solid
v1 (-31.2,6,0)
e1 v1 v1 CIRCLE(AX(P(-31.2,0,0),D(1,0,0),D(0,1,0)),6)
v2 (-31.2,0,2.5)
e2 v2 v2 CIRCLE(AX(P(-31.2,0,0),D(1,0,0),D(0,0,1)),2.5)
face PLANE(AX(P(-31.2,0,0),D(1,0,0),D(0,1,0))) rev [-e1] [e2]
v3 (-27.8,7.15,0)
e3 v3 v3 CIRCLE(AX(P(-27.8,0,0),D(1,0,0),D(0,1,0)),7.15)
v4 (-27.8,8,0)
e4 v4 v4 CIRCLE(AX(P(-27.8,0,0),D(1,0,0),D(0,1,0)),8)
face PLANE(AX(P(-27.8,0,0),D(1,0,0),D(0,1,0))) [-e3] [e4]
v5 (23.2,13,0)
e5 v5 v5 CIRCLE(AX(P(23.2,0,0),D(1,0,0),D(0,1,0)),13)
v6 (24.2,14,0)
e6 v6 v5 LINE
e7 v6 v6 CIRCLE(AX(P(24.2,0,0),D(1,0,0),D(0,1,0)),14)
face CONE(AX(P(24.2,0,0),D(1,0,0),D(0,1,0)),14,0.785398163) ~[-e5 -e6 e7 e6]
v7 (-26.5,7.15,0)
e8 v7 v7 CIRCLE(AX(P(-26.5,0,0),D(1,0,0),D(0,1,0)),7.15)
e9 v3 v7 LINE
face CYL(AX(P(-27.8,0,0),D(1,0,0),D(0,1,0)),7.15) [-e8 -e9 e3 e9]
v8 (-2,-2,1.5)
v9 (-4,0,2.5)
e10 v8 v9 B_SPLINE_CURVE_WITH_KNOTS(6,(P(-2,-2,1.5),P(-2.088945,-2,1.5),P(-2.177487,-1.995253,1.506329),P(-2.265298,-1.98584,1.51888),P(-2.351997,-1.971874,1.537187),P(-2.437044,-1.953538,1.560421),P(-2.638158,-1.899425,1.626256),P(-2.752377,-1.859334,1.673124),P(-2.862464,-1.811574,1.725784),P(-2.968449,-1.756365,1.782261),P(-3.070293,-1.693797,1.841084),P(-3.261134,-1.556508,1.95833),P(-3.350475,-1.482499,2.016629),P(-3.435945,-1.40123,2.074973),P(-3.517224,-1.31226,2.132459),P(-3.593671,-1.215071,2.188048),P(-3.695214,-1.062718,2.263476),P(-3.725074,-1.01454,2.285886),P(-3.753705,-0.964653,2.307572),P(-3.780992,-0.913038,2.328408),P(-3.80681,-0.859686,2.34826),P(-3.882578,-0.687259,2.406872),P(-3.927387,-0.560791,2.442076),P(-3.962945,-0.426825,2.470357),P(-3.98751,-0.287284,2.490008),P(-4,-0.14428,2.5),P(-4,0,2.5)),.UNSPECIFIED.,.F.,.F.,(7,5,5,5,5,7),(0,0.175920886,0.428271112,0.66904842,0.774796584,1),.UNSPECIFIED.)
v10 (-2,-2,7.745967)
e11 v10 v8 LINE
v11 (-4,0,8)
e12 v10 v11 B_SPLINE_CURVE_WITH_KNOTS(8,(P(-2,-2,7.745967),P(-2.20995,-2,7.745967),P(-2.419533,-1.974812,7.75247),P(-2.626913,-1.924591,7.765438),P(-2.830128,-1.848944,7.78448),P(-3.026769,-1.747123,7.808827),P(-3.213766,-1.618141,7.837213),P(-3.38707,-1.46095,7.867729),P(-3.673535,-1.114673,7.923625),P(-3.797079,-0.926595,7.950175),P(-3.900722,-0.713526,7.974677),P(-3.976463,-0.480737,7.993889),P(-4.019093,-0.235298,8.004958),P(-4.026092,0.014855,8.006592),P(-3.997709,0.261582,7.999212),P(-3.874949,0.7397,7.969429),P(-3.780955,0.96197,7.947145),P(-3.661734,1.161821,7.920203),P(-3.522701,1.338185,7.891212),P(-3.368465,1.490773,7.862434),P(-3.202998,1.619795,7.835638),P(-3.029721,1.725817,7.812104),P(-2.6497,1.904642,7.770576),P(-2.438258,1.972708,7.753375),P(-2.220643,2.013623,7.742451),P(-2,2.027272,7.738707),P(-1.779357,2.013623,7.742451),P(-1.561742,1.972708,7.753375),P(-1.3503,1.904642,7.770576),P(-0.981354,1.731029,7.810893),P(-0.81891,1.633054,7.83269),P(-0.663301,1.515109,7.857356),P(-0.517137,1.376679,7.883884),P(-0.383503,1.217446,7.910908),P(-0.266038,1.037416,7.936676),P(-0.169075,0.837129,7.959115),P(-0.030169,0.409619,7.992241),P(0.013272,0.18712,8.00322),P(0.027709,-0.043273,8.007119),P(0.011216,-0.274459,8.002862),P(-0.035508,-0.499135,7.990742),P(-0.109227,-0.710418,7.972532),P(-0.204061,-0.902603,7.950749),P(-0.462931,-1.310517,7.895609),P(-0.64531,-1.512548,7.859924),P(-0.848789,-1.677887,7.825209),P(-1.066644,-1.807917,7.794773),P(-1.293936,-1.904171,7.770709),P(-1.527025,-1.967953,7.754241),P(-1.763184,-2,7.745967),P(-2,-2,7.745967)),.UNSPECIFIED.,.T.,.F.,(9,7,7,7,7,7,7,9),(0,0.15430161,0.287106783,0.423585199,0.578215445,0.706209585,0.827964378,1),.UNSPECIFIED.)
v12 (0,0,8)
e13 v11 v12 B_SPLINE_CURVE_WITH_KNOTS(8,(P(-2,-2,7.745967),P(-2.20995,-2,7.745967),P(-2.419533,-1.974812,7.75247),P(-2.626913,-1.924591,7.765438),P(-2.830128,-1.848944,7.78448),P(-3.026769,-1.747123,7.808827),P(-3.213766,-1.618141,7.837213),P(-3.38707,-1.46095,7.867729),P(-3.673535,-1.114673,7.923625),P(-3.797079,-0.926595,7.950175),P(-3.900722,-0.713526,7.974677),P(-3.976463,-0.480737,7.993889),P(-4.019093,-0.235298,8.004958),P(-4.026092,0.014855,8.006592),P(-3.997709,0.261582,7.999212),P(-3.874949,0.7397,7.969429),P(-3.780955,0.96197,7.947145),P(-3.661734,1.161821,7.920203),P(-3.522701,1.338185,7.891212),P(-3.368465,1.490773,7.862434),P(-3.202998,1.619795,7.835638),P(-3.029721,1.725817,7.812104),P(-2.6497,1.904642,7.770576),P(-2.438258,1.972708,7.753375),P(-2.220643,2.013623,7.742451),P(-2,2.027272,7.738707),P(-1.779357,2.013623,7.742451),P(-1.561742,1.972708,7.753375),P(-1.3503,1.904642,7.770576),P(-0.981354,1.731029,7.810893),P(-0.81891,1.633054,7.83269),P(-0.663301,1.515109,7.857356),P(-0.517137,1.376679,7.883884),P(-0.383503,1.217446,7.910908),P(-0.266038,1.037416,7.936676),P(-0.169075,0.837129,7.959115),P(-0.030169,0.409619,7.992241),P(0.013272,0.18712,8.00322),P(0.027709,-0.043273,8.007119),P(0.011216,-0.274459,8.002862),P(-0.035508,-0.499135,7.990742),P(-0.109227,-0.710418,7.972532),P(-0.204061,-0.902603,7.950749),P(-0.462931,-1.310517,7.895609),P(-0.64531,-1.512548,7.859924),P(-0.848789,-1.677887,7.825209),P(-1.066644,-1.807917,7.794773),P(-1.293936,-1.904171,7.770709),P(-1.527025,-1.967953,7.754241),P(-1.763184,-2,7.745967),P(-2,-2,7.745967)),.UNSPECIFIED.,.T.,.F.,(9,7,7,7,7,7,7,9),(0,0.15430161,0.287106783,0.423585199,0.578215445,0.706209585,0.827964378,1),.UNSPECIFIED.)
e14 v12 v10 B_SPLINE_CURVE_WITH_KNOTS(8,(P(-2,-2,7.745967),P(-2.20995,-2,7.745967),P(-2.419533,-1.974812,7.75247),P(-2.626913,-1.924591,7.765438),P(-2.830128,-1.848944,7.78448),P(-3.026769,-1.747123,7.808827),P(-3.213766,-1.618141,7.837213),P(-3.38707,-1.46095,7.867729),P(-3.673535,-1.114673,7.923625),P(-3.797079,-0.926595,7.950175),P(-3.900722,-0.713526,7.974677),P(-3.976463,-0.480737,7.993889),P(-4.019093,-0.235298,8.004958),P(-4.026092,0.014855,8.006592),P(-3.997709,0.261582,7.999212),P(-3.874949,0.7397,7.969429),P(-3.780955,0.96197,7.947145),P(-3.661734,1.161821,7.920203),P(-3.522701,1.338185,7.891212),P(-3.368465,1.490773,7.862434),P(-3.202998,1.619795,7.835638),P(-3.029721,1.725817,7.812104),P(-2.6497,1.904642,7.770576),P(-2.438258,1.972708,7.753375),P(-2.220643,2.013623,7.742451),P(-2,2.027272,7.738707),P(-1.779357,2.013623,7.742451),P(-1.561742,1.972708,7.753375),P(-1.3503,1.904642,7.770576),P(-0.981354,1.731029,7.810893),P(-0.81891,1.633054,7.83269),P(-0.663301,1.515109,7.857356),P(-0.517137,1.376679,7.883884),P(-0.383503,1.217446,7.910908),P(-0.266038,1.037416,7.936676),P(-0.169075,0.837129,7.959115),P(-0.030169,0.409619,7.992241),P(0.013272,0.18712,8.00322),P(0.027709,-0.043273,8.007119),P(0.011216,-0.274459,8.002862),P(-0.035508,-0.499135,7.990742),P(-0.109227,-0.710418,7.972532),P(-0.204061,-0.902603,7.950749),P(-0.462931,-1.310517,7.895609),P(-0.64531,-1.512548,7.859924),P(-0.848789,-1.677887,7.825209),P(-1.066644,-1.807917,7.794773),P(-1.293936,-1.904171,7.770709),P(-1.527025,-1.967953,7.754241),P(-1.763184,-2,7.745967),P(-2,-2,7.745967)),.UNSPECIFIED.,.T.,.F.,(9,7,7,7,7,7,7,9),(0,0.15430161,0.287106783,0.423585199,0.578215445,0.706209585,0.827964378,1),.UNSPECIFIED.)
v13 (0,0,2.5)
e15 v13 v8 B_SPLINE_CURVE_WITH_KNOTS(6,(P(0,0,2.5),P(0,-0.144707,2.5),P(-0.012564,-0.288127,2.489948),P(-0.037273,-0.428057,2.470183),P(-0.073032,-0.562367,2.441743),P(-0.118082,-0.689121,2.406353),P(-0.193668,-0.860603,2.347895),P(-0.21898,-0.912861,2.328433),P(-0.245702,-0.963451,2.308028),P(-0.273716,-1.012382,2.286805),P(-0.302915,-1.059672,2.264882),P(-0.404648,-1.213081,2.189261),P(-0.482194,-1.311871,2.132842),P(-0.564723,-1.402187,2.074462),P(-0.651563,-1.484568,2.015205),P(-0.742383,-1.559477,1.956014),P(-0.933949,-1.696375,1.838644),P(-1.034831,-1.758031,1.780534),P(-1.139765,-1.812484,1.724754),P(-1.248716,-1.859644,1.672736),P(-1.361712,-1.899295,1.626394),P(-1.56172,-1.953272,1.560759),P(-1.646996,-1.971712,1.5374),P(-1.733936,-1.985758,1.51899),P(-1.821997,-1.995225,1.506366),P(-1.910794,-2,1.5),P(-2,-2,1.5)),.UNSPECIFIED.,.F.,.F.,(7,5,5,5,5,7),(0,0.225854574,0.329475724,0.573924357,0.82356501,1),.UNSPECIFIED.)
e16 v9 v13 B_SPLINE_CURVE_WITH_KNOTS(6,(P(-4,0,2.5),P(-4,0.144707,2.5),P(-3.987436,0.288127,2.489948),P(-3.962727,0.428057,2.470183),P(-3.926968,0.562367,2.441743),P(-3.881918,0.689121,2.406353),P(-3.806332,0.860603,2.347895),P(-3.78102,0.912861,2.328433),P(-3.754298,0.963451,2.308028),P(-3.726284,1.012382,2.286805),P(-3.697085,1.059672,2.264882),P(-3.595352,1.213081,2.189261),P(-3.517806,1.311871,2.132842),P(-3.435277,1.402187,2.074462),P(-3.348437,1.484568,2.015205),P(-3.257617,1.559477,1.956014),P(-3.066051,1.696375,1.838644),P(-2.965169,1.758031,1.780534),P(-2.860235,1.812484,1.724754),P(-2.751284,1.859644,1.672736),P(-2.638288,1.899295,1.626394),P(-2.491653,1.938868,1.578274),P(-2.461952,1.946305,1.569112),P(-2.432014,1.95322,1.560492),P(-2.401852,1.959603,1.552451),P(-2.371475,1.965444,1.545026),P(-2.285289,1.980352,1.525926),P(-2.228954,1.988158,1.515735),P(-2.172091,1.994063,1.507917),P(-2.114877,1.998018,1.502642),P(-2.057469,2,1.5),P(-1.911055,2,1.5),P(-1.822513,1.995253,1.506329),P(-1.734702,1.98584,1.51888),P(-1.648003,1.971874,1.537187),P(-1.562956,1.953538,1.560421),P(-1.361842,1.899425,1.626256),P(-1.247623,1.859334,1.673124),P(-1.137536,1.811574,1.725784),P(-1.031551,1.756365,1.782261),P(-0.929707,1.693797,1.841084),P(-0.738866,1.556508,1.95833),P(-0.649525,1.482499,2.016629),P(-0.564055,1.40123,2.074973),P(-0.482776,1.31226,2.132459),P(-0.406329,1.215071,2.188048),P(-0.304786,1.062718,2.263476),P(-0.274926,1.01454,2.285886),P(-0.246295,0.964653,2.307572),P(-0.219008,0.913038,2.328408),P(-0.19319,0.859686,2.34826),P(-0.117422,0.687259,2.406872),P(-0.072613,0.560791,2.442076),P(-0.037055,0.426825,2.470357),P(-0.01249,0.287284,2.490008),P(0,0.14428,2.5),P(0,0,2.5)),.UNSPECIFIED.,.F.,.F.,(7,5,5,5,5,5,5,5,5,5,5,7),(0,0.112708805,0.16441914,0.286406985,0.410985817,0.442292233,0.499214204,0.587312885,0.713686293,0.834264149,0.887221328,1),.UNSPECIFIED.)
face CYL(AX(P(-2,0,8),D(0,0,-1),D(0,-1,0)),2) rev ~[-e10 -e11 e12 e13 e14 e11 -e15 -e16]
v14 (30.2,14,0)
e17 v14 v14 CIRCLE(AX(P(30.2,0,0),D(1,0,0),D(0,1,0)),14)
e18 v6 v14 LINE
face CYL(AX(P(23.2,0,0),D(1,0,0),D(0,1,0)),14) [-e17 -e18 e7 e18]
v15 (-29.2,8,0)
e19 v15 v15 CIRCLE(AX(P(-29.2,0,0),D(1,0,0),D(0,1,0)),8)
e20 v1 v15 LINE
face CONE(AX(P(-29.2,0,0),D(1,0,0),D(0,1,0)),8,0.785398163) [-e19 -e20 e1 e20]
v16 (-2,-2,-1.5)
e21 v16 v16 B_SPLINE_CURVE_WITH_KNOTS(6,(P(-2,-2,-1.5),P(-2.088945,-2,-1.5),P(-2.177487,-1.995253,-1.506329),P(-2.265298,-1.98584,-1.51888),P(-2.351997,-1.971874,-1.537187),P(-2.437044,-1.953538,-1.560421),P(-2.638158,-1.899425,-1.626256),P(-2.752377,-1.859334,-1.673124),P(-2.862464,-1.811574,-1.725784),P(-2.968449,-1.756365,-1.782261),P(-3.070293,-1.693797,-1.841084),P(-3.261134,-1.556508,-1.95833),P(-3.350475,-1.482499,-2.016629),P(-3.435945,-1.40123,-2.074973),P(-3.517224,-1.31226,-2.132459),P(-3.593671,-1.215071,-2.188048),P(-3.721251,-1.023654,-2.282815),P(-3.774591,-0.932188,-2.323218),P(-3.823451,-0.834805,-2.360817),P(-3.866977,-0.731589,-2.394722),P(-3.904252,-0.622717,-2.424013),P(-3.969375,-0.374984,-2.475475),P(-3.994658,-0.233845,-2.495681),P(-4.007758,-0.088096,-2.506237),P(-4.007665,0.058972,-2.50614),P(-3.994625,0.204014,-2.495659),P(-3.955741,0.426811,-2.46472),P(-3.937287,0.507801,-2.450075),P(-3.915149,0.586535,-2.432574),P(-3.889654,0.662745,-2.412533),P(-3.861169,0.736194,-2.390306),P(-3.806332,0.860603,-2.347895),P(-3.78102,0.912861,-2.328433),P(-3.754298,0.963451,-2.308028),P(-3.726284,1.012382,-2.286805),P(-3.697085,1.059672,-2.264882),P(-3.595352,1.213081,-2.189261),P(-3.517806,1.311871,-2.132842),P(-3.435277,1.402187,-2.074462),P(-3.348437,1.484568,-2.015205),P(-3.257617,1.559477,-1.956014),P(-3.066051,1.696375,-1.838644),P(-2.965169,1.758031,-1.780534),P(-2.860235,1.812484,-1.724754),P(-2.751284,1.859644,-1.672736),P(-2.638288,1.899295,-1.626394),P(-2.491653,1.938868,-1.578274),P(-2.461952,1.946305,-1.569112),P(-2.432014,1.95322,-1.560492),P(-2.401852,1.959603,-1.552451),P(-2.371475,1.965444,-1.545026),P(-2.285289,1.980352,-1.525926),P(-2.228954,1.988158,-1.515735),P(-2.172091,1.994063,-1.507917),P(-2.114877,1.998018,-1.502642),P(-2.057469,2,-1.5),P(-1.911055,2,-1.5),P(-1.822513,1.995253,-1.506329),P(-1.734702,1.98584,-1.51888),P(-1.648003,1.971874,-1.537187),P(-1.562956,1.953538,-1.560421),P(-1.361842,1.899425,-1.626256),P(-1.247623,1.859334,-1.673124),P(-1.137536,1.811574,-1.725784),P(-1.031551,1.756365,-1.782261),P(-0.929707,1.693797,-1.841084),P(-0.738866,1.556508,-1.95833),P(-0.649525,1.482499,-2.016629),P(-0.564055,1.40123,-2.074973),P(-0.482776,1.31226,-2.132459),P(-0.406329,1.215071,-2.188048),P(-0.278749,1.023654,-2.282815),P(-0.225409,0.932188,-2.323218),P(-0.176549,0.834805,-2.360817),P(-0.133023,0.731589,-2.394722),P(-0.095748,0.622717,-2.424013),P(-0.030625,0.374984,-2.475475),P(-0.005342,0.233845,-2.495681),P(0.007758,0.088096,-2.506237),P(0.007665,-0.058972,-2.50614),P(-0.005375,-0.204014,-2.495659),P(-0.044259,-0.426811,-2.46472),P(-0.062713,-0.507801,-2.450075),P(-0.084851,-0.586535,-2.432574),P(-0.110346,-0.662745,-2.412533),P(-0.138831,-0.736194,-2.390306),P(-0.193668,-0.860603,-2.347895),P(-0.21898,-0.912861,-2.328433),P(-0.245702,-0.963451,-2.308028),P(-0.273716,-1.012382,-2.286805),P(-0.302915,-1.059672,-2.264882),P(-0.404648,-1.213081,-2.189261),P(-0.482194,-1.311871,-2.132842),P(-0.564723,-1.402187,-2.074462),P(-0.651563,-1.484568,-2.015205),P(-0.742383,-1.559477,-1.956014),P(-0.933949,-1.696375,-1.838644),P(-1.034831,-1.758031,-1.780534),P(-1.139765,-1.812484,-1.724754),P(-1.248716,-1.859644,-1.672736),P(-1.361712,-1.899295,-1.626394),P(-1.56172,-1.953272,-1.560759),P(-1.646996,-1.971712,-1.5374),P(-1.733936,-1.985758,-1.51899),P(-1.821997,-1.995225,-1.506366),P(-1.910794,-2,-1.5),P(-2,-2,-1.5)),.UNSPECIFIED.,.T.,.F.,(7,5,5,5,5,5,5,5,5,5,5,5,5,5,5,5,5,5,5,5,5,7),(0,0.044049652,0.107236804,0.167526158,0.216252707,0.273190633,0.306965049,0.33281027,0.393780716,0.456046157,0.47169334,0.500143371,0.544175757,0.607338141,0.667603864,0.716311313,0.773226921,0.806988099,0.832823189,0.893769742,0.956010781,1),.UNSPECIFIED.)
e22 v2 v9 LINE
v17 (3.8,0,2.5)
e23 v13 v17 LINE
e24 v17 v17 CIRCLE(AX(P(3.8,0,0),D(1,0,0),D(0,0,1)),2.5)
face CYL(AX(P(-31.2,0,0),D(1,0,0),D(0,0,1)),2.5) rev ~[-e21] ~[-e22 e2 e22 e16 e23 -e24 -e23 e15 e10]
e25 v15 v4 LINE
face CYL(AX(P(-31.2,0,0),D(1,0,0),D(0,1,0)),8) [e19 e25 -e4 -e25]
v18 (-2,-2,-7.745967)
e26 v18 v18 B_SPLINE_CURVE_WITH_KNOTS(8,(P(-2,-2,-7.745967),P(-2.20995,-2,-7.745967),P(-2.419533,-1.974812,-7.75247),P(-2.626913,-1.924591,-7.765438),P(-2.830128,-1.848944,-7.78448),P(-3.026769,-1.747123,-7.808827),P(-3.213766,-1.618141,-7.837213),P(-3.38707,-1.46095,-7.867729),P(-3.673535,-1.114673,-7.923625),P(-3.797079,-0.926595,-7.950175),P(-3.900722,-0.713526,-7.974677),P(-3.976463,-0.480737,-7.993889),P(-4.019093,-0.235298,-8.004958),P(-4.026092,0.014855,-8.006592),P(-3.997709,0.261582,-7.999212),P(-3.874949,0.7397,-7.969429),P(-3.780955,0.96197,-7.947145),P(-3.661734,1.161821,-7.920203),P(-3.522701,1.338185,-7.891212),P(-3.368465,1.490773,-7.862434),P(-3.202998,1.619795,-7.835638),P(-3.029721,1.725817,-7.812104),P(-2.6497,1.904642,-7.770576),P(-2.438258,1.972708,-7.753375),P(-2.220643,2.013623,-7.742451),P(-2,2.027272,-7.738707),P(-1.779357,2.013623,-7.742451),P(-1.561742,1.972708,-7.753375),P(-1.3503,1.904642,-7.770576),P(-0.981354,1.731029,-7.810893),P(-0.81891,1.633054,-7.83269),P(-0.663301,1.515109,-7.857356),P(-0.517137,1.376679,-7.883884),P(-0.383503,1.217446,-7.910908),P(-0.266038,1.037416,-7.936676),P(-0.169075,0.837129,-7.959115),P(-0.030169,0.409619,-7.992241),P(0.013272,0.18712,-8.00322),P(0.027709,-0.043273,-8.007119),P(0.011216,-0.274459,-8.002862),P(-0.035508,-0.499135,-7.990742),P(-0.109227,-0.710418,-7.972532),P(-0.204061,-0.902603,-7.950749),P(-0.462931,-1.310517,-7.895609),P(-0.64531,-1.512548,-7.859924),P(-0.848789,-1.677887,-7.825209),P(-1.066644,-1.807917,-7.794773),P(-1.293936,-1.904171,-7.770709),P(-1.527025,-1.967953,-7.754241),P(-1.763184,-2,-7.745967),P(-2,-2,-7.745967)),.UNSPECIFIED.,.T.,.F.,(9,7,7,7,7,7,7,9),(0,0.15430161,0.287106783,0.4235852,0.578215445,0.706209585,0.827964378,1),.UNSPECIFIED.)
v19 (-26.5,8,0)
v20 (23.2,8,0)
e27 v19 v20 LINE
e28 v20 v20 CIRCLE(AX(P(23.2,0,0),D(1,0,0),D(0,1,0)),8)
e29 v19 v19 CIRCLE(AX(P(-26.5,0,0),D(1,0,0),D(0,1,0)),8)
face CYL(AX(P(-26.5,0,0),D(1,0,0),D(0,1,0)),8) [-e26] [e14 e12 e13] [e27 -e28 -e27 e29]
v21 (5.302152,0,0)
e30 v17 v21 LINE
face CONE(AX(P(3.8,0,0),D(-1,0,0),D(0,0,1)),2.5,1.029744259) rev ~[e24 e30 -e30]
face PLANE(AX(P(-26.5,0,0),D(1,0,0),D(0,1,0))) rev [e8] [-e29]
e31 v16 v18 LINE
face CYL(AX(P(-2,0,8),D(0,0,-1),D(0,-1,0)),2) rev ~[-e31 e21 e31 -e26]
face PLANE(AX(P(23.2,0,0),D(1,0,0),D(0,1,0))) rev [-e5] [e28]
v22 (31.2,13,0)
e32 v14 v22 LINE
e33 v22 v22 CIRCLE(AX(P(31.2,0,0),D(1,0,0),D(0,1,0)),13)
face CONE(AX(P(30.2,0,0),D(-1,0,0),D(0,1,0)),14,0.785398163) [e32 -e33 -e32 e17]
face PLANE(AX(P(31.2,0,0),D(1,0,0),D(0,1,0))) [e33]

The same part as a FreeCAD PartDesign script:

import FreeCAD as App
import Part
import Sketcher
from FreeCAD import Vector
Q = App.Units.Quantity


def edges_at(feature, points):
    """Names of the edges that pass closest to the given points."""
    edges = feature.Shape.Edges
    near = lambda p: min(range(len(edges)), key=lambda i: edges[i].distToShape(Part.Vertex(*p))[0])
    return sorted({f"Edge{near(p) + 1}" for p in points})

doc = App.newDocument("Part")
body = doc.addObject("PartDesign::Body", "Body")

sketch1 = body.newObject("Sketcher::SketchObject", "Sketch")
sketch1.AttachmentSupport = (doc.getObject("XY_Plane"), [""])
sketch1.MapMode = "FlatFace"
sketch1.addGeometry([
    Part.LineSegment(Vector(-31.2, 8, 0), Vector(-31.2, 0, 0)),
    Part.LineSegment(Vector(-31.2, 0, 0), Vector(31.2, 0, 0)),
    Part.LineSegment(Vector(31.2, 0, 0), Vector(31.2, 14, 0)),
    Part.LineSegment(Vector(31.2, 14, 0), Vector(23.2, 14, 0)),
    Part.LineSegment(Vector(23.2, 14, 0), Vector(23.2, 8, 0)),
    Part.LineSegment(Vector(23.2, 8, 0), Vector(-26.5, 8, 0)),
    Part.LineSegment(Vector(-26.5, 8, 0), Vector(-26.5, 7.2, 0)),
    Part.LineSegment(Vector(-26.5, 7.2, 0), Vector(-27.8, 7.2, 0)),
    Part.LineSegment(Vector(-27.8, 7.2, 0), Vector(-27.8, 8, 0)),
    Part.LineSegment(Vector(-27.8, 8, 0), Vector(-31.2, 8, 0)),
], False)
sketch1.addConstraint([
    Sketcher.Constraint("Coincident", 0, 2, 1, 1),
    Sketcher.Constraint("Coincident", 1, 2, 2, 1),
    Sketcher.Constraint("Coincident", 2, 2, 3, 1),
    Sketcher.Constraint("Coincident", 3, 2, 4, 1),
    Sketcher.Constraint("Coincident", 4, 2, 5, 1),
    Sketcher.Constraint("Coincident", 5, 2, 6, 1),
    Sketcher.Constraint("Coincident", 6, 2, 7, 1),
    Sketcher.Constraint("Coincident", 7, 2, 8, 1),
    Sketcher.Constraint("Coincident", 8, 2, 9, 1),
    Sketcher.Constraint("Coincident", 9, 2, 0, 1),
    Sketcher.Constraint("Vertical", 0),
    Sketcher.Constraint("Horizontal", 1),
    Sketcher.Constraint("Vertical", 2),
    Sketcher.Constraint("Horizontal", 3),
    Sketcher.Constraint("Vertical", 4),
    Sketcher.Constraint("Horizontal", 5),
    Sketcher.Constraint("Vertical", 6),
    Sketcher.Constraint("Horizontal", 7),
    Sketcher.Constraint("Vertical", 8),
    Sketcher.Constraint("Horizontal", 9),
    Sketcher.Constraint("Symmetric", 0, 2, 1, 2, -1, 1),
    Sketcher.Constraint("Horizontal", 5, 2, 8, 2),
    Sketcher.Constraint("Equal", 3, 0),
    Sketcher.Constraint("DistanceX", 3, 2, 3, 1, Q("8 mm")),
    Sketcher.Constraint("DistanceY", 4, 2, 4, 1, Q("6 mm")),
    Sketcher.Constraint("DistanceX", 5, 2, 5, 1, Q("49.7 mm")),
    Sketcher.Constraint("DistanceX", 7, 2, 7, 1, Q("1.3 mm")),
    Sketcher.Constraint("DistanceX", 9, 2, 9, 1, Q("3.4 mm")),
    Sketcher.Constraint("DistanceY", 6, 2, 6, 1, Q("0.85 mm")),
])
revolution = body.newObject("PartDesign::Revolution", "Revolution")
revolution.Profile = sketch1
revolution.ReferenceAxis = (sketch1, ["H_Axis"])
revolution.Angle = 360
doc.recompute()

chamfer = body.newObject("PartDesign::Chamfer", "Chamfer")
chamfer.Base = (revolution, edges_at(revolution, [(-31.2, -8, 0)]))
chamfer.Size = 2
doc.recompute()

chamfer2 = body.newObject("PartDesign::Chamfer", "Chamfer001")
chamfer2.Base = (chamfer, edges_at(chamfer, [(31.2, -14, 0)]))
chamfer2.Size = 1
doc.recompute()

chamfer3 = body.newObject("PartDesign::Chamfer", "Chamfer002")
chamfer3.Base = (chamfer2, edges_at(chamfer2, [(23.2, -14, 0)]))
chamfer3.Size = 1

sketch2 = body.newObject("Sketcher::SketchObject", "Sketch001")
sketch2.AttachmentSupport = (doc.getObject("YZ_Plane"), [""])
sketch2.MapMode = "FlatFace"
sketch2.AttachmentOffset = App.Placement(Vector(0, 0, -31.2), App.Rotation())
sketch2.addGeometry(Part.Circle(Vector(0, 0, 0), Vector(0, 0, 1), 2.5), False)
sketch2.addConstraint([
    Sketcher.Constraint("Coincident", 0, 3, -1, 1),
    Sketcher.Constraint("Diameter", 0, Q("5 mm")),
])
doc.recompute()
hole = body.newObject("PartDesign::Hole", "Hole")
hole.Profile = sketch2
hole.ThreadType = "None"
hole.Diameter = 5
hole.DepthType = "Dimension"
hole.Depth = 35
hole.DrillPoint = "Angled"
hole.DrillPointAngle = 118
hole.Reversed = True

sketch3 = body.newObject("Sketcher::SketchObject", "Sketch002")
sketch3.AttachmentSupport = (doc.getObject("XY_Plane"), [""])
sketch3.MapMode = "FlatFace"
sketch3.AttachmentOffset = App.Placement(Vector(0, 0, 8), App.Rotation())
sketch3.addGeometry(Part.Circle(Vector(-2, 0, 0), Vector(0, 0, 1), 2), False)
sketch3.addConstraint([
    Sketcher.Constraint("PointOnObject", 0, 3, -1),
    Sketcher.Constraint("Diameter", 0, Q("4 mm")),
    Sketcher.Constraint("DistanceX", 0, 3, -1, 1, Q("2 mm")),
])
doc.recompute()
hole2 = body.newObject("PartDesign::Hole", "Hole001")
hole2.Profile = sketch3
hole2.ThreadType = "None"
hole2.Diameter = 4
hole2.DepthType = "ThroughAll"

doc.recompute()
